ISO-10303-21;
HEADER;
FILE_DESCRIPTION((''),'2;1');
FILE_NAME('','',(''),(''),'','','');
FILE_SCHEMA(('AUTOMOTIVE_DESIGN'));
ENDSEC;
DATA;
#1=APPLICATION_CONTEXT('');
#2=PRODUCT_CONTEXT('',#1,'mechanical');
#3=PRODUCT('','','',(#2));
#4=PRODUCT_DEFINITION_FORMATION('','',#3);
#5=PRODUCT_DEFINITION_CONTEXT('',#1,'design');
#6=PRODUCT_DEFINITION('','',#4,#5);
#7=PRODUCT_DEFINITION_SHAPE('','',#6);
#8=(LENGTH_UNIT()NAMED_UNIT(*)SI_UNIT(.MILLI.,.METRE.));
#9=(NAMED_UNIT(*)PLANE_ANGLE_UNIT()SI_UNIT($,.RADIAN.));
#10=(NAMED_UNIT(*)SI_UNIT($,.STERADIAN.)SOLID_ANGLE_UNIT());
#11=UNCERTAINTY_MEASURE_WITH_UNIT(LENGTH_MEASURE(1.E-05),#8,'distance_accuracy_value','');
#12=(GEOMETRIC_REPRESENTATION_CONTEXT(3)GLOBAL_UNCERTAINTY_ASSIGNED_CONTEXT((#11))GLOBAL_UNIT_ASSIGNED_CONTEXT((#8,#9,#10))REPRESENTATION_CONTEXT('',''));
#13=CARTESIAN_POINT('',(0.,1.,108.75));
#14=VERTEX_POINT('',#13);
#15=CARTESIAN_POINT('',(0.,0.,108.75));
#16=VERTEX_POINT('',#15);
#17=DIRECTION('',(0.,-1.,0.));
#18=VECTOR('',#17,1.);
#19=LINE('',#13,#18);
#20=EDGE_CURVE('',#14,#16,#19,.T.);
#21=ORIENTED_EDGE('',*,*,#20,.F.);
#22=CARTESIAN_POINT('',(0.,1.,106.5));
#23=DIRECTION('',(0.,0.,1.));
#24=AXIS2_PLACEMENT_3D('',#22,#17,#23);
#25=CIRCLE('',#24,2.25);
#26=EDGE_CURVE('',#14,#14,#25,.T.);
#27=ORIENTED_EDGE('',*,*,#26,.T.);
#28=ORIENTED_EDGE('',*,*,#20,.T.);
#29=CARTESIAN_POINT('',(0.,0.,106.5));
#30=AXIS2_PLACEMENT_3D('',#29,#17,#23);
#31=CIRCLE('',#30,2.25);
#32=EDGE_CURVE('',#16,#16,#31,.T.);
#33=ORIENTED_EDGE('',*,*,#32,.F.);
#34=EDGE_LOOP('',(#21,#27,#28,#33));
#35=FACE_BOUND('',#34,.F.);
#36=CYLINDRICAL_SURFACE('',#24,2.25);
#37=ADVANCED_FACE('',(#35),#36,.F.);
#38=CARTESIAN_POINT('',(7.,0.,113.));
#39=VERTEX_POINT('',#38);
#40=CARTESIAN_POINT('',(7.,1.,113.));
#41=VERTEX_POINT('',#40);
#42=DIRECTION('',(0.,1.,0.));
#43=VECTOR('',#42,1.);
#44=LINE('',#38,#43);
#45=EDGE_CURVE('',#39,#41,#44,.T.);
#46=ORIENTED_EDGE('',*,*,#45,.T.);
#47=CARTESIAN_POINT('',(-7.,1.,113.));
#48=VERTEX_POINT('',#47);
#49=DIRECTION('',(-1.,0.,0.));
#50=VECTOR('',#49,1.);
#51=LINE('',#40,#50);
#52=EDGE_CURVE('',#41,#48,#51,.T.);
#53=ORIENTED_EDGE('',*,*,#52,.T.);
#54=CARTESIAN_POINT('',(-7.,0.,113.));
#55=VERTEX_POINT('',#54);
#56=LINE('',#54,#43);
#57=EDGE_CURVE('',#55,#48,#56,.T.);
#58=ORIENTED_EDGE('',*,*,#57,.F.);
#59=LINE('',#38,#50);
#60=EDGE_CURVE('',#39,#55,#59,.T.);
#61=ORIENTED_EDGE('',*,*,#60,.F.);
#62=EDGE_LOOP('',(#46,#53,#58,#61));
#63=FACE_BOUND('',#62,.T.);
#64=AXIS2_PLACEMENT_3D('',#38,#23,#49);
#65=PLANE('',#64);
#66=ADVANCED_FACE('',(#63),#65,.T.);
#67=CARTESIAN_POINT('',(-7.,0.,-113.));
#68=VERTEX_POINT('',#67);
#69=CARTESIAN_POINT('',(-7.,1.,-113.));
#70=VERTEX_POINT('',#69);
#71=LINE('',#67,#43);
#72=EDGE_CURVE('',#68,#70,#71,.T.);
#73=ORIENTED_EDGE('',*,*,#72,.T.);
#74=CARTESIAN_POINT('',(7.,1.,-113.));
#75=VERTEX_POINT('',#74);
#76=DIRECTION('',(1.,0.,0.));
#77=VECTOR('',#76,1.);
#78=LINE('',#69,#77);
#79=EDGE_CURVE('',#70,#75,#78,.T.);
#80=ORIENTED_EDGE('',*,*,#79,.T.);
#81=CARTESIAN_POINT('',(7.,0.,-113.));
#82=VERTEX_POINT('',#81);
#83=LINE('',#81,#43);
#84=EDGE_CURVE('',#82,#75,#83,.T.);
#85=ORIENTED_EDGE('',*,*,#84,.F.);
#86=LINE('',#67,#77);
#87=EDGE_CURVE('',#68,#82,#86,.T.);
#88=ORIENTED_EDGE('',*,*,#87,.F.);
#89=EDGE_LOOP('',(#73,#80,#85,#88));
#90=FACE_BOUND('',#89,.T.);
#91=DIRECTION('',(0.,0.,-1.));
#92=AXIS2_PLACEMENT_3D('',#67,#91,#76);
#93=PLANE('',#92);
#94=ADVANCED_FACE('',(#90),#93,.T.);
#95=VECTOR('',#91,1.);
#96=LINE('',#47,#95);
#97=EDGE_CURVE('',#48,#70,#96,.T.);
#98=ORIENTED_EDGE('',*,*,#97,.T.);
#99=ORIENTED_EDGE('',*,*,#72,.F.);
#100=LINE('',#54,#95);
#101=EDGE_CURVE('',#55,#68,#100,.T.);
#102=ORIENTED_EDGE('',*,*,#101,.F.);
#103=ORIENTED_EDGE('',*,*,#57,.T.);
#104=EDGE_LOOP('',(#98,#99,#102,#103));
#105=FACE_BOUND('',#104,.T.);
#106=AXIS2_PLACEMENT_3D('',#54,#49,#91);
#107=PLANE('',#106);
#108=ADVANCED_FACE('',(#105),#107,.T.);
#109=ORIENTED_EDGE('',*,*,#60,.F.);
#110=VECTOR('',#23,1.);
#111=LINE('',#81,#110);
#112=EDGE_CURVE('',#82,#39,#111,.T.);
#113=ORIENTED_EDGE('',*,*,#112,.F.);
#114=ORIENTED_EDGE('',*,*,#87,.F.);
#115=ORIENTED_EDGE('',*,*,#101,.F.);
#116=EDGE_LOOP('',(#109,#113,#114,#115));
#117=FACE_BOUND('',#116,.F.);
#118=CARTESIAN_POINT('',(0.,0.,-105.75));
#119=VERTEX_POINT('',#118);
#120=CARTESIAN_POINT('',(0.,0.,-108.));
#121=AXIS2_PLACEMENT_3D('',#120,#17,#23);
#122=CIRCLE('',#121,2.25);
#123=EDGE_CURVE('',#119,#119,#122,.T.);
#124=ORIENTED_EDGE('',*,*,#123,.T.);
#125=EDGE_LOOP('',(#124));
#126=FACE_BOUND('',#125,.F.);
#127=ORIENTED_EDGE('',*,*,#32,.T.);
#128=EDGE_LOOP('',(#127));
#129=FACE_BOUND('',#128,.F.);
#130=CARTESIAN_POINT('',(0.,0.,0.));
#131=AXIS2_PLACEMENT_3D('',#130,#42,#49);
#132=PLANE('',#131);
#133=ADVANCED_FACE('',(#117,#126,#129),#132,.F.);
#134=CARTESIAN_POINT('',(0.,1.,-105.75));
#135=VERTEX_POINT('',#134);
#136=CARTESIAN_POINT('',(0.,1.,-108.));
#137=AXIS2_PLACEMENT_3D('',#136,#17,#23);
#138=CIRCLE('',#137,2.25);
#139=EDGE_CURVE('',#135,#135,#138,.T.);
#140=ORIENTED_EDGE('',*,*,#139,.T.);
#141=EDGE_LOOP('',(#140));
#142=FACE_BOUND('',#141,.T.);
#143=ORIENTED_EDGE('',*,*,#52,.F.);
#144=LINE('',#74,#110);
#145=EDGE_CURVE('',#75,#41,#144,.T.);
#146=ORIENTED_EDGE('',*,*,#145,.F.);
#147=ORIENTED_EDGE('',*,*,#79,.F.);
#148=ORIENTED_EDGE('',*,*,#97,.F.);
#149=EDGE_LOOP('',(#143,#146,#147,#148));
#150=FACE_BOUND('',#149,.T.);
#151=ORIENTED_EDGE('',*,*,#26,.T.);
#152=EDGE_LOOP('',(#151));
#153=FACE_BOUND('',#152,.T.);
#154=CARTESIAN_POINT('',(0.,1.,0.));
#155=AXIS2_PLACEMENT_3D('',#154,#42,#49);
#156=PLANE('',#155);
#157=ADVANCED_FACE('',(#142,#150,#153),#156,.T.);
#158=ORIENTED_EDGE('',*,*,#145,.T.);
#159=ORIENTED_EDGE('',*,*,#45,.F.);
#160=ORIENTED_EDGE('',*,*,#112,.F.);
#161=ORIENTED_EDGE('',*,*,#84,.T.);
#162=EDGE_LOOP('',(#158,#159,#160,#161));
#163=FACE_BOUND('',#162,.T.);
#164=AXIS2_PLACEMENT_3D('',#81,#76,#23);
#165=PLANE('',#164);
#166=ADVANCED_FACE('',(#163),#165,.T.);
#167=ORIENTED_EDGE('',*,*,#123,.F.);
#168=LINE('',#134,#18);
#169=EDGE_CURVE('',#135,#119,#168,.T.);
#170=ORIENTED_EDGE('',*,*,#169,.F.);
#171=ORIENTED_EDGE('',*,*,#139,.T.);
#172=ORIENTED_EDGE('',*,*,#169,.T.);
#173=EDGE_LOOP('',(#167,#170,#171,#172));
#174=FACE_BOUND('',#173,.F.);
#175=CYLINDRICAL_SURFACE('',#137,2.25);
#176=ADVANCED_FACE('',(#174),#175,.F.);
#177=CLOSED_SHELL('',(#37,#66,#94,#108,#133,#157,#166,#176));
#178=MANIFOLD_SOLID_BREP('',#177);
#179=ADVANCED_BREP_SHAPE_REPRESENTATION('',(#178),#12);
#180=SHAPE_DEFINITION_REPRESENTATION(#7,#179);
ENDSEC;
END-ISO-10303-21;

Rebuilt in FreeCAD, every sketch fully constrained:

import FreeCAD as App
import Part
import Sketcher
from FreeCAD import Vector
Q = App.Units.Quantity

doc = App.newDocument("Part")
body = doc.addObject("PartDesign::Body", "Body")

sketch1 = doc.addObject("Sketcher::SketchObject", "Sketch")
body.addObject(sketch1)
sketch1.AttachmentSupport = (doc.XZ_Plane, [""])
sketch1.MapMode = "FlatFace"
sketch1.addGeometry([
    Part.LineSegment(Vector(-7, 113, 0), Vector(7, 113, 0)),
    Part.LineSegment(Vector(7, 113, 0), Vector(7, -113, 0)),
    Part.LineSegment(Vector(7, -113, 0), Vector(-7, -113, 0)),
    Part.LineSegment(Vector(-7, -113, 0), Vector(-7, 113, 0)),
], False)
sketch1.addConstraint([
    Sketcher.Constraint("Coincident", 0, 2, 1, 1),
    Sketcher.Constraint("Coincident", 1, 2, 2, 1),
    Sketcher.Constraint("Coincident", 2, 2, 3, 1),
    Sketcher.Constraint("Coincident", 3, 2, 0, 1),
    Sketcher.Constraint("Horizontal", 0),
    Sketcher.Constraint("Vertical", 1),
    Sketcher.Constraint("Horizontal", 2),
    Sketcher.Constraint("Vertical", 3),
    Sketcher.Constraint("Symmetric", 0, 2, 2, 2, -1, 1),
    Sketcher.Constraint("DistanceX", 0, 1, 0, 2, Q("14 mm")),
    Sketcher.Constraint("DistanceY", 1, 2, 1, 1, Q("226 mm")),
])
pad1 = doc.addObject("PartDesign::Pad", "Pad")
body.addObject(pad1)
pad1.Profile = sketch1
pad1.Length = 1
pad1.Reversed = True

sketch2 = doc.addObject("Sketcher::SketchObject", "Sketch001")
body.addObject(sketch2)
sketch2.AttachmentSupport = (doc.XZ_Plane, [""])
sketch2.MapMode = "FlatFace"
sketch2.AttachmentOffset = App.Placement(Vector(0, 0, -1), App.Rotation())
sketch2.addGeometry([
    Part.Circle(Vector(0, 106.5, 0), Vector(0, 0, 1), 2.2),
    Part.Circle(Vector(0, -108, 0), Vector(0, 0, 1), 2.2),
], False)
sketch2.addConstraint([
    Sketcher.Constraint("Equal", 0, 1),
    Sketcher.Constraint("PointOnObject", 0, 3, -2),
    Sketcher.Constraint("PointOnObject", 1, 3, -2),
    Sketcher.Constraint("Diameter", 0, Q("4.5 mm")),
    Sketcher.Constraint("DistanceY", 1, 3, -1, 1, Q("108 mm")),
    Sketcher.Constraint("DistanceY", -1, 1, 0, 3, Q("106.5 mm")),
])
doc.recompute()
hole = doc.addObject("PartDesign::Hole", "Hole")
body.addObject(hole)
hole.Profile = sketch2
hole.ThreadType = "None"
hole.Diameter = 4.5
hole.DepthType = "ThroughAll"
hole.Reversed = True

doc.recompute()
